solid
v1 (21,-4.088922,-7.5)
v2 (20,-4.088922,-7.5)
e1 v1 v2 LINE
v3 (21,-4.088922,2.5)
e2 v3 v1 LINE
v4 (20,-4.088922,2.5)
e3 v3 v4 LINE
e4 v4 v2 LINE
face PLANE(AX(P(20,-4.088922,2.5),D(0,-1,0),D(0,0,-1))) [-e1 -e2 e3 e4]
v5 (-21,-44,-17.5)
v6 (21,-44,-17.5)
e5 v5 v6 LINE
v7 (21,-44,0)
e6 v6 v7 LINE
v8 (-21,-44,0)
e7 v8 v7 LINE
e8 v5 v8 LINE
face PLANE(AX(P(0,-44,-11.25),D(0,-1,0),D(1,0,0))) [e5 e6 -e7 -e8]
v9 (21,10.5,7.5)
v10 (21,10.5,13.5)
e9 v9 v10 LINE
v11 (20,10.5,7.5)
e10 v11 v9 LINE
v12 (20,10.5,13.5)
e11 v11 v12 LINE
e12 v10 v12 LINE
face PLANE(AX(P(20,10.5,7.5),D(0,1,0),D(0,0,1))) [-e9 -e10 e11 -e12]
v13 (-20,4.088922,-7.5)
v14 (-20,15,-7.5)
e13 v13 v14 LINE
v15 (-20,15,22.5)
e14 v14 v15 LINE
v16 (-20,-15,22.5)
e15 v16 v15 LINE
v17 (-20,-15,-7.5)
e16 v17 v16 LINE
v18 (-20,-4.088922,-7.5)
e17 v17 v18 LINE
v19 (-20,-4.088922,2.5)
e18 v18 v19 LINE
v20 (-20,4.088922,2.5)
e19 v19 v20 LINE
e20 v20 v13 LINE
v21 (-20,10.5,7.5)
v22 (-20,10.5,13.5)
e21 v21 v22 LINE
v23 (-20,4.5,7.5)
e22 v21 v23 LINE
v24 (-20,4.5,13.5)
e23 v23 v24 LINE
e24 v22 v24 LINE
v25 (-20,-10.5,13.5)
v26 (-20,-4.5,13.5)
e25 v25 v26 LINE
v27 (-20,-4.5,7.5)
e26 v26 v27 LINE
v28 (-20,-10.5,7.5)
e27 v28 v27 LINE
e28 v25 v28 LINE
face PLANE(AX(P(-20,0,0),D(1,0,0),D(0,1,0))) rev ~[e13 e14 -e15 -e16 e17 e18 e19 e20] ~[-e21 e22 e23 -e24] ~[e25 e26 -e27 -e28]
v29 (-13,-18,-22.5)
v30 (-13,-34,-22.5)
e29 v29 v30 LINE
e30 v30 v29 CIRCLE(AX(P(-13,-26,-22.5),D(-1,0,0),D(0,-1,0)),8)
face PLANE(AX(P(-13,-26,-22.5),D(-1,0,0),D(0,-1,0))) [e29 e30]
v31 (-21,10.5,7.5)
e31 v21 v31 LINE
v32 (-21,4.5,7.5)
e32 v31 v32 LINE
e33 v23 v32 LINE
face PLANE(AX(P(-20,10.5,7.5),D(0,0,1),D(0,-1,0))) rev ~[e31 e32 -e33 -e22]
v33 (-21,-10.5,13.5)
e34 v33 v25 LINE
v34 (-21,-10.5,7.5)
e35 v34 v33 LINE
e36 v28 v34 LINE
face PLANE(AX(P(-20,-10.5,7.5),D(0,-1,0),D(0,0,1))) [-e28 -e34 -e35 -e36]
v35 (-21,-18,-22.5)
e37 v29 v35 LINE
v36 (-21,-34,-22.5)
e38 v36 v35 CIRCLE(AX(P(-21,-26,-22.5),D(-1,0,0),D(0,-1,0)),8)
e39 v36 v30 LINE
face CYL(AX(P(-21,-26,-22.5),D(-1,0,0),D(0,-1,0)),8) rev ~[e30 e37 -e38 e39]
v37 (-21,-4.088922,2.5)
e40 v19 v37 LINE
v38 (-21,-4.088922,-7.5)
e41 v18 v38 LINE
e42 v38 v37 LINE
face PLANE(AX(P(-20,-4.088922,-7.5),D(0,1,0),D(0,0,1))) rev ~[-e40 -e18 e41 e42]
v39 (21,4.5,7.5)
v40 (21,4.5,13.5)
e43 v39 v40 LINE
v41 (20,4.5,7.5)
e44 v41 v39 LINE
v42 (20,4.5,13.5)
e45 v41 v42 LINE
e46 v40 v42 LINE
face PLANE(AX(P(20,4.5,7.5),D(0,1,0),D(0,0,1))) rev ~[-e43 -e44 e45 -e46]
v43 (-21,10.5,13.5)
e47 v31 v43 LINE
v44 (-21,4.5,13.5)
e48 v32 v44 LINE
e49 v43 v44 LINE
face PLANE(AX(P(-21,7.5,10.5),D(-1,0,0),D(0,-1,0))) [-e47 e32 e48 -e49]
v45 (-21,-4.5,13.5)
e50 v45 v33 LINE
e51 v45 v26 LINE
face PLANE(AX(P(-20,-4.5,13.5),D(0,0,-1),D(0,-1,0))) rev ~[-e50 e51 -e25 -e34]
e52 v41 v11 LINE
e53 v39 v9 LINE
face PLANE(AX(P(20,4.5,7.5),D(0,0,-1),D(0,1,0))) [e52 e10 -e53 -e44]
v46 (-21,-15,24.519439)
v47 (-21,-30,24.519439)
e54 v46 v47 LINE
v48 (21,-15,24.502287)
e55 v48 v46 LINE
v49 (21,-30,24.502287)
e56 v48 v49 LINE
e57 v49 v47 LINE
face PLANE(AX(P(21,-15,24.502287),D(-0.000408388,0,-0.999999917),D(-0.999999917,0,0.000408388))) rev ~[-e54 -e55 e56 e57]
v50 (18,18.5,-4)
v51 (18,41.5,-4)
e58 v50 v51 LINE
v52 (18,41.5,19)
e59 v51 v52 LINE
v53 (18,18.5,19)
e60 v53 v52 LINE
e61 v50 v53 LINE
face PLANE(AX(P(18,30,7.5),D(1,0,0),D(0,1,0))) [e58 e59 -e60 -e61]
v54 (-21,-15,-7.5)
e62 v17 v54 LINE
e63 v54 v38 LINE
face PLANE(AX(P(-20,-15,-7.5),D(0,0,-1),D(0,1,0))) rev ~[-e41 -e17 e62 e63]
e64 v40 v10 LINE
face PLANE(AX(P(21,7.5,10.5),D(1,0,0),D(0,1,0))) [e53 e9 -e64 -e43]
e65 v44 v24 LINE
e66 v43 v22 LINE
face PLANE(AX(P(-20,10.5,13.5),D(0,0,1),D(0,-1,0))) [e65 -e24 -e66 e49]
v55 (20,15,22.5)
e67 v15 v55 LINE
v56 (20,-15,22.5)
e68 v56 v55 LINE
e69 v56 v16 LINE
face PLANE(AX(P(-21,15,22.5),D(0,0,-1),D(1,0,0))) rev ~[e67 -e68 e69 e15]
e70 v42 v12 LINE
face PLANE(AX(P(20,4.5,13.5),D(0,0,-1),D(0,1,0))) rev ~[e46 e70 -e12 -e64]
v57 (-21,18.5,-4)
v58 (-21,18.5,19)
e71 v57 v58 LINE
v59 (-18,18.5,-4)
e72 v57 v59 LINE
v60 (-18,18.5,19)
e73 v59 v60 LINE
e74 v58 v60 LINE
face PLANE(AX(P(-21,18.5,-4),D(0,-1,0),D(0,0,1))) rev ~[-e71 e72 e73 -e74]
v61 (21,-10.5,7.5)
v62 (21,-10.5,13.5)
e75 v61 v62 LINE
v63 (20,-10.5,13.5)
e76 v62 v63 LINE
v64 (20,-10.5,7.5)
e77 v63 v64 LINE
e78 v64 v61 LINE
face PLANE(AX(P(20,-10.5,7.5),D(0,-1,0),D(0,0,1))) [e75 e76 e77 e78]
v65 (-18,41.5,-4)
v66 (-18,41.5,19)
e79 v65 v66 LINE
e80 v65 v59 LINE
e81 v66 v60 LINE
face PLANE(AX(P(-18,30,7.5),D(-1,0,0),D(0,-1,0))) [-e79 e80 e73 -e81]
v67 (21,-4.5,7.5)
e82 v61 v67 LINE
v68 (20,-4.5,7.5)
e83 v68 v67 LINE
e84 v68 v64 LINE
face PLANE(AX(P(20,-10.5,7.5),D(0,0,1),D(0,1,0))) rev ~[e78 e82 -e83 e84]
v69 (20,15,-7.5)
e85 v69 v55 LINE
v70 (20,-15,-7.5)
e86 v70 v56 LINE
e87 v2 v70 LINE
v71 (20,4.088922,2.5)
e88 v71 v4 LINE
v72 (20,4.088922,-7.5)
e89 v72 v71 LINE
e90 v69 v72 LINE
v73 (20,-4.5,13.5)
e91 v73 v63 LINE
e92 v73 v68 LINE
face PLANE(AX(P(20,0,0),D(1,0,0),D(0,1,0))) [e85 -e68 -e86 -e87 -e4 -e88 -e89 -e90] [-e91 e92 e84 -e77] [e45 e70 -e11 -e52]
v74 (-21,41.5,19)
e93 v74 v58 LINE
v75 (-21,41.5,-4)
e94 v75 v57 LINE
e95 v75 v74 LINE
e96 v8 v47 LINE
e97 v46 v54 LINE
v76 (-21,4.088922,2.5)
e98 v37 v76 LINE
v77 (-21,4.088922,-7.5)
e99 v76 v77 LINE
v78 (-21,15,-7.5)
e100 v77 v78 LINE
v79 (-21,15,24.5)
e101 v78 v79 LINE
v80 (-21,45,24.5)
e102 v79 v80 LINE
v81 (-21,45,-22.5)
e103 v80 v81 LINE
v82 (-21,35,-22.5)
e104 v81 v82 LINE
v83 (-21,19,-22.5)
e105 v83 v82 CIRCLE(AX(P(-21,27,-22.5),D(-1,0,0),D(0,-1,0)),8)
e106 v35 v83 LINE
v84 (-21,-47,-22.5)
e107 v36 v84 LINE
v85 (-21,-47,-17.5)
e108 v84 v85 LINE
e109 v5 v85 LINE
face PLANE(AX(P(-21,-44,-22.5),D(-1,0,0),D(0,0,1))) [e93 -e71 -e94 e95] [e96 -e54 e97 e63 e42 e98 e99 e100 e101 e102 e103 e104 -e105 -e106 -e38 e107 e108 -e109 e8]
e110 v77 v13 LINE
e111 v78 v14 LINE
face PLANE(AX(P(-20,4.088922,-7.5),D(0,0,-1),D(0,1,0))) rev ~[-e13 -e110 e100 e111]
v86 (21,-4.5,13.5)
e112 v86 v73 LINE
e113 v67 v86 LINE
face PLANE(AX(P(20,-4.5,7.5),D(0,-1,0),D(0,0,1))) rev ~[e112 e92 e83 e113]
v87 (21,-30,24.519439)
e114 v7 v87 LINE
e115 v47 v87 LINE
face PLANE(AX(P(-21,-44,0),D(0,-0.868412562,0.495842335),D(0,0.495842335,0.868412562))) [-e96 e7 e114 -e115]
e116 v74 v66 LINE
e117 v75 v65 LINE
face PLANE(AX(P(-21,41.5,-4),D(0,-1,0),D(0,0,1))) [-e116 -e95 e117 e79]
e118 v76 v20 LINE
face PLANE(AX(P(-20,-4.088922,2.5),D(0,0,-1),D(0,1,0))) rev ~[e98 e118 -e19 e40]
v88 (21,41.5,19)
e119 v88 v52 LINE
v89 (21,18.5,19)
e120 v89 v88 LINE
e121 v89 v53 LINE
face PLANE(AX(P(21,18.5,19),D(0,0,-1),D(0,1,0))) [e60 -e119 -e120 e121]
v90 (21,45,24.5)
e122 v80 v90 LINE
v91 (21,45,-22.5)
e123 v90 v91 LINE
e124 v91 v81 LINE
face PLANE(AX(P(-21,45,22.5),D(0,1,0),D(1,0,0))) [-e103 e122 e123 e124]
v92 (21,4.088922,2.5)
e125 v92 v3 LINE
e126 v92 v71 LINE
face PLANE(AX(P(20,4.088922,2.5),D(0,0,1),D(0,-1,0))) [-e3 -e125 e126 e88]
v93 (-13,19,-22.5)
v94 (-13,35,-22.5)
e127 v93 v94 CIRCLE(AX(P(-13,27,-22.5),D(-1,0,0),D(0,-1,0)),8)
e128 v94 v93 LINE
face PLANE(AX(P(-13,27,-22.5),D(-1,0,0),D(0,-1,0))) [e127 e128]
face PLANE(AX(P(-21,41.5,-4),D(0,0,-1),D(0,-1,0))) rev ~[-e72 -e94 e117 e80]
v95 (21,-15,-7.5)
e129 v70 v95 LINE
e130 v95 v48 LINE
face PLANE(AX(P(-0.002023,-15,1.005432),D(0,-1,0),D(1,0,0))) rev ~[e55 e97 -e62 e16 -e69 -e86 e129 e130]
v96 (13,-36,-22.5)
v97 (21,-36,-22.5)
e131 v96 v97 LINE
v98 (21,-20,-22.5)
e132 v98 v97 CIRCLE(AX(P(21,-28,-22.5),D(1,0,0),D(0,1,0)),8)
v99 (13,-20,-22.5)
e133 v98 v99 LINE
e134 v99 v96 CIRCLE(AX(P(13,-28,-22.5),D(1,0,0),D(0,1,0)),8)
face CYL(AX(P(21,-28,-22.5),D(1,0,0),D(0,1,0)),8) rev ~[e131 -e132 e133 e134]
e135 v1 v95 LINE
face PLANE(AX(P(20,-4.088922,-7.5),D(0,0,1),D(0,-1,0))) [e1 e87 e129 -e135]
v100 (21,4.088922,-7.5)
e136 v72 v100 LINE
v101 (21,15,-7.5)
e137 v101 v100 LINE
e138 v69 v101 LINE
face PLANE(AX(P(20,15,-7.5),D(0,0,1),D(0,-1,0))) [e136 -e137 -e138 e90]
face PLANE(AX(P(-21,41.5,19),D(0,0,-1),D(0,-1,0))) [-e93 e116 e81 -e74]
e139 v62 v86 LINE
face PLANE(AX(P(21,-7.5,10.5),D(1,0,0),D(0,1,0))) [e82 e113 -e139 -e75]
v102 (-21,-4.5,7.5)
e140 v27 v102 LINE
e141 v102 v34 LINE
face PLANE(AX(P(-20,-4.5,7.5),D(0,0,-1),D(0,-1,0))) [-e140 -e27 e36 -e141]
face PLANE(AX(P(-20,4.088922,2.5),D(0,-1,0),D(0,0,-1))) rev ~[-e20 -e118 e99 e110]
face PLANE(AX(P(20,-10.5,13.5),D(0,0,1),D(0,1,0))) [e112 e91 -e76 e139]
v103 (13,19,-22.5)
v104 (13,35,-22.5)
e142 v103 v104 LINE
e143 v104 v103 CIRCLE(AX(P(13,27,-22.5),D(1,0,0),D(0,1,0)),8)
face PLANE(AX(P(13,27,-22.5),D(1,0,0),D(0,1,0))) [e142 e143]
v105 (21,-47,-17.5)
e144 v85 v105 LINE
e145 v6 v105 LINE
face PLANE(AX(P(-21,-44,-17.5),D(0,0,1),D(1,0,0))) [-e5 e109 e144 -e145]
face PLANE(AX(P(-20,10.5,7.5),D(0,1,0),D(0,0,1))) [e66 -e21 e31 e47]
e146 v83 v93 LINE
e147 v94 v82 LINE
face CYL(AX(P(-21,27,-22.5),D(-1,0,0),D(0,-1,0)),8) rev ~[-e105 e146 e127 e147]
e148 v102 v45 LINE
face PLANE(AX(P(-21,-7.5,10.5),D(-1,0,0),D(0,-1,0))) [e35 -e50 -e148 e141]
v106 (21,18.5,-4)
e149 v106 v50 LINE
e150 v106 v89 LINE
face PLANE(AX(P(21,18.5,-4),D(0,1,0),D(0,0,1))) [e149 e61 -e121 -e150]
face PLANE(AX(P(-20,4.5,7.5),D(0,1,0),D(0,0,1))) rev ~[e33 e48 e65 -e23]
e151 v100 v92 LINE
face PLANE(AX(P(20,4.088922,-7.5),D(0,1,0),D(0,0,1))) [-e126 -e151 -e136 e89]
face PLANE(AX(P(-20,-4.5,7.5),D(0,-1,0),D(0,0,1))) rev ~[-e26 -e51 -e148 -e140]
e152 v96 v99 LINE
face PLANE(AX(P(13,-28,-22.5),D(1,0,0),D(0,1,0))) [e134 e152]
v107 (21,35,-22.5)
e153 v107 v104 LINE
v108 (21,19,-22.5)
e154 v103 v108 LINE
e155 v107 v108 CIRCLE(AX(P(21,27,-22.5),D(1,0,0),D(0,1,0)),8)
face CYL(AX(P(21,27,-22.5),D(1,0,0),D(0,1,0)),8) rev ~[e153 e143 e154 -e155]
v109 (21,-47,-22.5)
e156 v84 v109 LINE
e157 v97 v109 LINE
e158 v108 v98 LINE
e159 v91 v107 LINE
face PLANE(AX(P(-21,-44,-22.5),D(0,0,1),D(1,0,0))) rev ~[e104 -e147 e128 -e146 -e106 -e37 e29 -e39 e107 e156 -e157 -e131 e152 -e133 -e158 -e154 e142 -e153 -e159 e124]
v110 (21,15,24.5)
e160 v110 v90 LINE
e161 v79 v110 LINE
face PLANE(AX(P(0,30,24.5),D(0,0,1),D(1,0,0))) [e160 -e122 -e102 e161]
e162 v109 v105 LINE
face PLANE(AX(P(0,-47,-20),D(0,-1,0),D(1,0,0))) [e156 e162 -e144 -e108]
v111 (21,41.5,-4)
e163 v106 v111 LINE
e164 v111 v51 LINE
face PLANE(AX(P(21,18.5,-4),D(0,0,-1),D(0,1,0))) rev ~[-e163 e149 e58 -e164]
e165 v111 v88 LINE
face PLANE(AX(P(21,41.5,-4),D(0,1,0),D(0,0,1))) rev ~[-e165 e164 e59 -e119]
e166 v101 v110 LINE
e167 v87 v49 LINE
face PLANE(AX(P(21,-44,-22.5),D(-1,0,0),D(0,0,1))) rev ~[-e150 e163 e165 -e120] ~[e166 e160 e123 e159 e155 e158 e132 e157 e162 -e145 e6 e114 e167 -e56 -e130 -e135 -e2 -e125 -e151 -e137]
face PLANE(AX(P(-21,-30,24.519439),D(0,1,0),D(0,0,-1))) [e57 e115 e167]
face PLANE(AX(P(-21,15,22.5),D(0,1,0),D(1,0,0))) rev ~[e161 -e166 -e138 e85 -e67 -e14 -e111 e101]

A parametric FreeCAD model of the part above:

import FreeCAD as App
import Part
import Sketcher
Q = App.Units.Quantity

doc = App.newDocument("Part")
body = doc.addObject("PartDesign::Body", "Body")

# Sketch on YZ plane
sketch1 = body.newObject("Sketcher::SketchObject", "Sketch")
sketch1.AttachmentSupport = (doc.getObject("YZ_Plane"), [""])
sketch1.MapMode = "FlatFace"
sketch1.addGeometry([
    Part.LineSegment(App.Vector(-15, 22.5, 0), App.Vector(-15, -22.5, 0)),
    Part.LineSegment(App.Vector(-15, -22.5, 0), App.Vector(15, -22.5, 0)),
    Part.LineSegment(App.Vector(15, -22.5, 0), App.Vector(15, 22.5, 0)),
    Part.LineSegment(App.Vector(15, 22.5, 0), App.Vector(-15, 22.5, 0)),
], False)
sketch1.addConstraint([
    Sketcher.Constraint("Coincident", 0, 2, 1, 1),
    Sketcher.Constraint("Coincident", 1, 2, 2, 1),
    Sketcher.Constraint("Coincident", 2, 2, 3, 1),
    Sketcher.Constraint("Coincident", 3, 2, 0, 1),
    Sketcher.Constraint("Vertical", 0),
    Sketcher.Constraint("Horizontal", 1),
    Sketcher.Constraint("Vertical", 2),
    Sketcher.Constraint("Horizontal", 3),
    Sketcher.Constraint("Symmetric", 0, 2, 2, 2, -1, 1),
    Sketcher.Constraint("DistanceX", 1, 1, 1, 2, Q("30 mm")),
    Sketcher.Constraint("DistanceY", 0, 2, 0, 1, Q("45 mm")),
])
pad1 = body.newObject("PartDesign::Pad", "Pad")
pad1.Profile = sketch1
pad1.Length = 40
pad1.Midplane = True

# Sketch on YZ plane
sketch2 = body.newObject("Sketcher::SketchObject", "Sketch001")
sketch2.AttachmentSupport = (doc.getObject("YZ_Plane"), [""])
sketch2.MapMode = "FlatFace"
sketch2.AttachmentOffset = App.Placement(App.Vector(0, 0, -20), App.Rotation())
sketch2.addGeometry([
    Part.LineSegment(App.Vector(15, -7.5, 0), App.Vector(15, -22.5, 0)),  # 0
    Part.LineSegment(App.Vector(15, -22.5, 0), App.Vector(-15, -22.5, 0)),  # 1
    Part.LineSegment(App.Vector(-15, -22.5, 0), App.Vector(-15, -7.5, 0)),  # 2
    Part.LineSegment(App.Vector(-15, -7.5, 0), App.Vector(-4.088922, -7.5, 0)),  # 3
    Part.LineSegment(App.Vector(-4.088922, -7.5, 0), App.Vector(-4.088922, 2.5, 0)),  # 4
    Part.LineSegment(App.Vector(-4.088922, 2.5, 0), App.Vector(4.088922, 2.5, 0)),  # 5
    Part.LineSegment(App.Vector(4.088922, 2.5, 0), App.Vector(4.088922, -7.5, 0)),  # 6
    Part.LineSegment(App.Vector(4.088922, -7.5, 0), App.Vector(15, -7.5, 0)),  # 7
    Part.LineSegment(App.Vector(10.5, 13.5, 0), App.Vector(10.5, 7.5, 0)),  # 8
    Part.LineSegment(App.Vector(10.5, 7.5, 0), App.Vector(4.5, 7.5, 0)),  # 9
    Part.LineSegment(App.Vector(4.5, 7.5, 0), App.Vector(4.5, 13.5, 0)),  # 10
    Part.LineSegment(App.Vector(4.5, 13.5, 0), App.Vector(10.5, 13.5, 0)),  # 11
    Part.LineSegment(App.Vector(-4.5, 13.5, 0), App.Vector(-4.5, 7.5, 0)),  # 12
    Part.LineSegment(App.Vector(-4.5, 7.5, 0), App.Vector(-10.5, 7.5, 0)),  # 13
    Part.LineSegment(App.Vector(-10.5, 7.5, 0), App.Vector(-10.5, 13.5, 0)),  # 14
    Part.LineSegment(App.Vector(-10.5, 13.5, 0), App.Vector(-4.5, 13.5, 0)),  # 15
], False)
sketch2.addConstraint([
    Sketcher.Constraint("Coincident", 0, 2, 1, 1),
    Sketcher.Constraint("Coincident", 1, 2, 2, 1),
    Sketcher.Constraint("Coincident", 2, 2, 3, 1),
    Sketcher.Constraint("Coincident", 3, 2, 4, 1),
    Sketcher.Constraint("Coincident", 4, 2, 5, 1),
    Sketcher.Constraint("Coincident", 5, 2, 6, 1),
    Sketcher.Constraint("Coincident", 6, 2, 7, 1),
    Sketcher.Constraint("Coincident", 7, 2, 0, 1),
    Sketcher.Constraint("Coincident", 8, 2, 9, 1),
    Sketcher.Constraint("Coincident", 9, 2, 10, 1),
    Sketcher.Constraint("Coincident", 10, 2, 11, 1),
    Sketcher.Constraint("Coincident", 11, 2, 8, 1),
    Sketcher.Constraint("Coincident", 12, 2, 13, 1),
    Sketcher.Constraint("Coincident", 13, 2, 14, 1),
    Sketcher.Constraint("Coincident", 14, 2, 15, 1),
    Sketcher.Constraint("Coincident", 15, 2, 12, 1),
    Sketcher.Constraint("Vertical", 0),
    Sketcher.Constraint("Horizontal", 1),
    Sketcher.Constraint("Vertical", 2),
    Sketcher.Constraint("Horizontal", 3),
    Sketcher.Constraint("Vertical", 4),
    Sketcher.Constraint("Horizontal", 5),
    Sketcher.Constraint("Vertical", 6),
    Sketcher.Constraint("Horizontal", 7),
    Sketcher.Constraint("Vertical", 8),
    Sketcher.Constraint("Horizontal", 9),
    Sketcher.Constraint("Vertical", 10),
    Sketcher.Constraint("Horizontal", 11),
    Sketcher.Constraint("Vertical", 12),
    Sketcher.Constraint("Horizontal", 13),
    Sketcher.Constraint("Vertical", 14),
    Sketcher.Constraint("Horizontal", 15),
    Sketcher.Constraint("Symmetric", 3, 2, 6, 2, -2),
    Sketcher.Constraint("Symmetric", 9, 2, 12, 2, -2),
    Sketcher.Constraint("Symmetric", 11, 2, 14, 2, -2),
    Sketcher.Constraint("Equal", 3, 7),
    Sketcher.Constraint("Equal", 15, 8),
    Sketcher.Constraint("DistanceX", 1, 2, 1, 1, Q("30 mm")),
    Sketcher.Constraint("DistanceX", 9, 2, 9, 1, Q("6 mm")),
    Sketcher.Constraint("DistanceY", 0, 2, 0, 1, Q("15 mm")),
    Sketcher.Constraint("DistanceY", 4, 1, 4, 2, Q("10 mm")),
    Sketcher.Constraint("DistanceY", 5, 2, 8, 2, Q("5 mm")),
    Sketcher.Constraint("DistanceX", 12, 2, 9, 2, Q("9 mm")),
    Sketcher.Constraint("DistanceY", 0, 2, -1, 1, Q("22.5 mm")),
    Sketcher.Constraint("DistanceX", 3, 1, 3, 2, Q("10.911078 mm")),
])
pad2 = body.newObject("PartDesign::Pad", "Pad001")
pad2.Profile = sketch2
pad2.Length = 2
pad2.Midplane = True

# Sketch on YZ plane
sketch3 = body.newObject("Sketcher::SketchObject", "Sketch002")
sketch3.AttachmentSupport = (doc.getObject("YZ_Plane"), [""])
sketch3.MapMode = "FlatFace"
sketch3.AttachmentOffset = App.Placement(App.Vector(0, 0, 20), App.Rotation())
sketch3.addGeometry([
    Part.LineSegment(App.Vector(-4.088922, -7.5, 0), App.Vector(-15, -7.5, 0)),  # 0
    Part.LineSegment(App.Vector(-15, -7.5, 0), App.Vector(-15, -22.5, 0)),  # 1
    Part.LineSegment(App.Vector(-15, -22.5, 0), App.Vector(15, -22.5, 0)),  # 2
    Part.LineSegment(App.Vector(15, -22.5, 0), App.Vector(15, -7.5, 0)),  # 3
    Part.LineSegment(App.Vector(15, -7.5, 0), App.Vector(4.088922, -7.5, 0)),  # 4
    Part.LineSegment(App.Vector(4.088922, -7.5, 0), App.Vector(4.088922, 2.5, 0)),  # 5
    Part.LineSegment(App.Vector(4.088922, 2.5, 0), App.Vector(-4.088922, 2.5, 0)),  # 6
    Part.LineSegment(App.Vector(-4.088922, 2.5, 0), App.Vector(-4.088922, -7.5, 0)),  # 7
], False)
sketch3.addConstraint([
    Sketcher.Constraint("Coincident", 0, 2, 1, 1),
    Sketcher.Constraint("Coincident", 1, 2, 2, 1),
    Sketcher.Constraint("Coincident", 2, 2, 3, 1),
    Sketcher.Constraint("Coincident", 3, 2, 4, 1),
    Sketcher.Constraint("Coincident", 4, 2, 5, 1),
    Sketcher.Constraint("Coincident", 5, 2, 6, 1),
    Sketcher.Constraint("Coincident", 6, 2, 7, 1),
    Sketcher.Constraint("Coincident", 7, 2, 0, 1),
    Sketcher.Constraint("Horizontal", 0),
    Sketcher.Constraint("Vertical", 1),
    Sketcher.Constraint("Horizontal", 2),
    Sketcher.Constraint("Vertical", 3),
    Sketcher.Constraint("Horizontal", 4),
    Sketcher.Constraint("Vertical", 5),
    Sketcher.Constraint("Horizontal", 6),
    Sketcher.Constraint("Vertical", 7),
    Sketcher.Constraint("Symmetric", 0, 2, 3, 2, -2),
    Sketcher.Constraint("Equal", 0, 4),
    Sketcher.Constraint("DistanceX", 2, 1, 2, 2, Q("30 mm")),
    Sketcher.Constraint("DistanceY", 1, 2, 1, 1, Q("15 mm")),
    Sketcher.Constraint("DistanceY", 5, 1, 5, 2, Q("10 mm")),
    Sketcher.Constraint("DistanceY", 0, 2, -1, 1, Q("7.5 mm")),
    Sketcher.Constraint("DistanceX", 0, 2, 0, 1, Q("10.911078 mm")),
])
pad3 = body.newObject("PartDesign::Pad", "Pad002")
pad3.Profile = sketch3
pad3.Length = 2
pad3.Midplane = True

# Sketch on XZ plane
sketch4 = body.newObject("Sketcher::SketchObject", "Sketch003")
sketch4.AttachmentSupport = (doc.getObject("XZ_Plane"), [""])
sketch4.MapMode = "FlatFace"
sketch4.AttachmentOffset = App.Placement(App.Vector(0, 0, -15), App.Rotation())
sketch4.addGeometry([
    Part.LineSegment(App.Vector(-21, 22.5, 0), App.Vector(21, 22.5, 0)),
    Part.LineSegment(App.Vector(21, 22.5, 0), App.Vector(21, -22.5, 0)),
    Part.LineSegment(App.Vector(21, -22.5, 0), App.Vector(-21, -22.5, 0)),
    Part.LineSegment(App.Vector(-21, -22.5, 0), App.Vector(-21, 22.5, 0)),
], False)
sketch4.addConstraint([
    Sketcher.Constraint("Coincident", 0, 2, 1, 1),
    Sketcher.Constraint("Coincident", 1, 2, 2, 1),
    Sketcher.Constraint("Coincident", 2, 2, 3, 1),
    Sketcher.Constraint("Coincident", 3, 2, 0, 1),
    Sketcher.Constraint("Horizontal", 0),
    Sketcher.Constraint("Vertical", 1),
    Sketcher.Constraint("Horizontal", 2),
    Sketcher.Constraint("Vertical", 3),
    Sketcher.Constraint("Symmetric", 0, 2, 2, 2, -1, 1),
    Sketcher.Constraint("DistanceX", 0, 1, 0, 2, Q("42 mm")),
    Sketcher.Constraint("DistanceY", 1, 2, 1, 1, Q("45 mm")),
])
pad4 = body.newObject("PartDesign::Pad", "Pad003")
pad4.Profile = sketch4
pad4.Length = 30
pad4.Reversed = True

# Sketch on YZ plane
sketch5 = body.newObject("Sketcher::SketchObject", "Sketch004")
sketch5.AttachmentSupport = (doc.getObject("YZ_Plane"), [""])
sketch5.MapMode = "FlatFace"
sketch5.AttachmentOffset = App.Placement(App.Vector(0, 0, -21), App.Rotation())
sketch5.addGeometry([
    Part.LineSegment(App.Vector(41.5, 19, 0), App.Vector(41.5, -4, 0)),
    Part.LineSegment(App.Vector(41.5, -4, 0), App.Vector(18.5, -4, 0)),
    Part.LineSegment(App.Vector(18.5, -4, 0), App.Vector(18.5, 19, 0)),
    Part.LineSegment(App.Vector(18.5, 19, 0), App.Vector(41.5, 19, 0)),
], False)
sketch5.addConstraint([
    Sketcher.Constraint("Coincident", 0, 2, 1, 1),
    Sketcher.Constraint("Coincident", 1, 2, 2, 1),
    Sketcher.Constraint("Coincident", 2, 2, 3, 1),
    Sketcher.Constraint("Coincident", 3, 2, 0, 1),
    Sketcher.Constraint("Vertical", 0),
    Sketcher.Constraint("Horizontal", 1),
    Sketcher.Constraint("Vertical", 2),
    Sketcher.Constraint("Horizontal", 3),
    Sketcher.Constraint("Equal", 3, 0),
    Sketcher.Constraint("DistanceX", 1, 2, 1, 1, Q("23 mm")),
    Sketcher.Constraint("DistanceY", 0, 2, -1, 1, Q("4 mm")),
    Sketcher.Constraint("DistanceX", -1, 1, 0, 2, Q("41.5 mm")),
])
pocket1 = body.newObject("PartDesign::Pocket", "Pocket")
pocket1.Profile = sketch5
pocket1.Length = 3
pocket1.Reversed = True

# Sketch on YZ plane
sketch6 = body.newObject("Sketcher::SketchObject", "Sketch005")
sketch6.AttachmentSupport = (doc.getObject("YZ_Plane"), [""])
sketch6.MapMode = "FlatFace"
sketch6.AttachmentOffset = App.Placement(App.Vector(0, 0, 21), App.Rotation())
sketch6.addGeometry([
    Part.LineSegment(App.Vector(18.5, 19, 0), App.Vector(18.5, -4, 0)),
    Part.LineSegment(App.Vector(18.5, -4, 0), App.Vector(41.5, -4, 0)),
    Part.LineSegment(App.Vector(41.5, -4, 0), App.Vector(41.5, 19, 0)),
    Part.LineSegment(App.Vector(41.5, 19, 0), App.Vector(18.5, 19, 0)),
], False)
sketch6.addConstraint([
    Sketcher.Constraint("Coincident", 0, 2, 1, 1),
    Sketcher.Constraint("Coincident", 1, 2, 2, 1),
    Sketcher.Constraint("Coincident", 2, 2, 3, 1),
    Sketcher.Constraint("Coincident", 3, 2, 0, 1),
    Sketcher.Constraint("Vertical", 0),
    Sketcher.Constraint("Horizontal", 1),
    Sketcher.Constraint("Vertical", 2),
    Sketcher.Constraint("Horizontal", 3),
    Sketcher.Constraint("Equal", 3, 0),
    Sketcher.Constraint("DistanceX", 1, 1, 1, 2, Q("23 mm")),
    Sketcher.Constraint("DistanceY", 0, 2, -1, 1, Q("4 mm")),
    Sketcher.Constraint("DistanceX", -1, 1, 0, 2, Q("18.5 mm")),
])
pocket2 = body.newObject("PartDesign::Pocket", "Pocket001")
pocket2.Profile = sketch6
pocket2.Length = 3

# Sketch on XY plane
sketch7 = body.newObject("Sketcher::SketchObject", "Sketch006")
sketch7.AttachmentSupport = (doc.getObject("XY_Plane"), [""])
sketch7.MapMode = "FlatFace"
sketch7.AttachmentOffset = App.Placement(App.Vector(0, 0, 22.5), App.Rotation())
sketch7.addGeometry([
    Part.LineSegment(App.Vector(-21, 45, 0), App.Vector(-21, 15, 0)),
    Part.LineSegment(App.Vector(-21, 15, 0), App.Vector(21, 15, 0)),
    Part.LineSegment(App.Vector(21, 15, 0), App.Vector(21, 45, 0)),
    Part.LineSegment(App.Vector(21, 45, 0), App.Vector(-21, 45, 0)),
], False)
sketch7.addConstraint([
    Sketcher.Constraint("Coincident", 0, 2, 1, 1),
    Sketcher.Constraint("Coincident", 1, 2, 2, 1),
    Sketcher.Constraint("Coincident", 2, 2, 3, 1),
    Sketcher.Constraint("Coincident", 3, 2, 0, 1),
    Sketcher.Constraint("Vertical", 0),
    Sketcher.Constraint("Horizontal", 1),
    Sketcher.Constraint("Vertical", 2),
    Sketcher.Constraint("Horizontal", 3),
    Sketcher.Constraint("DistanceX", 1, 1, 1, 2, Q("42 mm")),
    Sketcher.Constraint("DistanceY", 0, 2, 0, 1, Q("30 mm")),
    Sketcher.Constraint("DistanceX", 0, 2, -1, 1, Q("21 mm")),
    Sketcher.Constraint("DistanceY", -1, 1, 0, 2, Q("15 mm")),
])
pad5 = body.newObject("PartDesign::Pad", "Pad004")
pad5.Profile = sketch7
pad5.Length = 2

# Sketch on YZ plane
sketch8 = body.newObject("Sketcher::SketchObject", "Sketch007")
sketch8.AttachmentSupport = (doc.getObject("YZ_Plane"), [""])
sketch8.MapMode = "FlatFace"
sketch8.AttachmentOffset = App.Placement(App.Vector(0, 0, -21), App.Rotation())
sketch8.addGeometry(Part.Circle(App.Vector(27, -22.5, 0), App.Vector(0, 0, 1), 8), False)
sketch8.addConstraint([
    Sketcher.Constraint("Diameter", 0, Q("16 mm")),
    Sketcher.Constraint("DistanceX", -1, 1, 0, 3, Q("27 mm")),
    Sketcher.Constraint("DistanceY", 0, 3, -1, 1, Q("22.5 mm")),
])
pocket3 = body.newObject("PartDesign::Pocket", "Pocket002")
pocket3.Profile = sketch8
pocket3.Length = 8
pocket3.Reversed = True

# Sketch on XZ plane
sketch9 = body.newObject("Sketcher::SketchObject", "Sketch008")
sketch9.AttachmentSupport = (doc.getObject("XZ_Plane"), [""])
sketch9.MapMode = "FlatFace"
sketch9.AttachmentOffset = App.Placement(App.Vector(0, 0, 15), App.Rotation())
sketch9.addGeometry([
    Part.LineSegment(App.Vector(-21, 24.519439, 0), App.Vector(-21, -22.5, 0)),
    Part.LineSegment(App.Vector(-21, -22.5, 0), App.Vector(21, -22.5, 0)),
    Part.LineSegment(App.Vector(21, -22.5, 0), App.Vector(21, 24.502287, 0)),
    Part.LineSegment(App.Vector(21, 24.502287, 0), App.Vector(-21, 24.519439, 0)),
], False)
sketch9.addConstraint([
    Sketcher.Constraint("Coincident", 0, 2, 1, 1),
    Sketcher.Constraint("Coincident", 1, 2, 2, 1),
    Sketcher.Constraint("Coincident", 2, 2, 3, 1),
    Sketcher.Constraint("Coincident", 3, 2, 0, 1),
    Sketcher.Constraint("Vertical", 0),
    Sketcher.Constraint("Horizontal", 1),
    Sketcher.Constraint("Vertical", 2),
    Sketcher.Constraint("DistanceX", 1, 1, 1, 2, Q("42 mm")),
    Sketcher.Constraint("DistanceX", 0, 2, -1, 1, Q("21 mm")),
    Sketcher.Constraint("DistanceY", 0, 2, -1, 1, Q("22.5 mm")),
    Sketcher.Constraint("DistanceY", 0, 2, 0, 1, Q("47.019439 mm")),
    Sketcher.Constraint("DistanceY", 2, 1, 2, 2, Q("47.002287 mm")),
])
pad6 = body.newObject("PartDesign::Pad", "Pad005")
pad6.Profile = sketch9
pad6.Length = 15

# Sketch on XZ plane
sketch10 = body.newObject("Sketcher::SketchObject", "Sketch009")
sketch10.AttachmentSupport = (doc.getObject("XZ_Plane"), [""])
sketch10.MapMode = "FlatFace"
sketch10.AttachmentOffset = App.Placement(App.Vector(0, 0, 30), App.Rotation())
sketch10.addGeometry([
    Part.LineSegment(App.Vector(-21, 0, 0), App.Vector(-21, -22.5, 0)),
    Part.LineSegment(App.Vector(-21, -22.5, 0), App.Vector(21, -22.5, 0)),
    Part.LineSegment(App.Vector(21, -22.5, 0), App.Vector(21, 0, 0)),
    Part.LineSegment(App.Vector(21, 0, 0), App.Vector(-21, 0, 0)),
], False)
sketch10.addConstraint([
    Sketcher.Constraint("Coincident", 0, 2, 1, 1),
    Sketcher.Constraint("Coincident", 1, 2, 2, 1),
    Sketcher.Constraint("Coincident", 2, 2, 3, 1),
    Sketcher.Constraint("Coincident", 3, 2, 0, 1),
    Sketcher.Constraint("Vertical", 0),
    Sketcher.Constraint("Horizontal", 1),
    Sketcher.Constraint("Vertical", 2),
    Sketcher.Constraint("Horizontal", 3),
    Sketcher.Constraint("Symmetric", 2, 2, 3, 2, -1, 1),
    Sketcher.Constraint("DistanceX", 1, 1, 1, 2, Q("42 mm")),
    Sketcher.Constraint("DistanceY", 0, 2, 0, 1, Q("22.5 mm")),
])
pad7 = body.newObject("PartDesign::Pad", "Pad006")
pad7.Profile = sketch10
pad7.Length = 14

# Sketch on YZ plane
sketch11 = body.newObject("Sketcher::SketchObject", "Sketch010")
sketch11.AttachmentSupport = (doc.getObject("YZ_Plane"), [""])
sketch11.MapMode = "FlatFace"
sketch11.AttachmentOffset = App.Placement(App.Vector(0, 0, 21), App.Rotation())
sketch11.addGeometry(Part.Circle(App.Vector(27, -22.5, 0), App.Vector(0, 0, 1), 8), False)
sketch11.addConstraint([
    Sketcher.Constraint("Diameter", 0, Q("16 mm")),
    Sketcher.Constraint("DistanceX", -1, 1, 0, 3, Q("27 mm")),
    Sketcher.Constraint("DistanceY", 0, 3, -1, 1, Q("22.5 mm")),
])
pocket4 = body.newObject("PartDesign::Pocket", "Pocket003")
pocket4.Profile = sketch11
pocket4.Length = 8

# Sketch on YZ plane
sketch12 = body.newObject("Sketcher::SketchObject", "Sketch011")
sketch12.AttachmentSupport = (doc.getObject("YZ_Plane"), [""])
sketch12.MapMode = "FlatFace"
sketch12.AttachmentOffset = App.Placement(App.Vector(0, 0, -21), App.Rotation())
sketch12.addGeometry([
    Part.LineSegment(App.Vector(-44, 0, 0), App.Vector(-30, 24.519439, 0)),
    Part.LineSegment(App.Vector(-30, 24.519439, 0), App.Vector(-30, 0, 0)),
    Part.LineSegment(App.Vector(-30, 0, 0), App.Vector(-44, 0, 0)),
], False)
sketch12.addConstraint([
    Sketcher.Constraint("Coincident", 0, 2, 1, 1),
    Sketcher.Constraint("Coincident", 1, 2, 2, 1),
    Sketcher.Constraint("Coincident", 2, 2, 0, 1),
    Sketcher.Constraint("Vertical", 1),
    Sketcher.Constraint("Horizontal", 2),
    Sketcher.Constraint("PointOnObject", 1, 2, -1),
    Sketcher.Constraint("DistanceX", 2, 2, 2, 1, Q("14 mm")),
    Sketcher.Constraint("DistanceX", 0, 2, -1, 1, Q("30 mm")),
    Sketcher.Constraint("DistanceY", 1, 2, 1, 1, Q("24.519439 mm")),
])
pad8 = body.newObject("PartDesign::Pad", "Pad007")
pad8.Profile = sketch12
pad8.Length = 42

# Sketch on YZ plane
sketch13 = body.newObject("Sketcher::SketchObject", "Sketch012")
sketch13.AttachmentSupport = (doc.getObject("YZ_Plane"), [""])
sketch13.MapMode = "FlatFace"
sketch13.AttachmentOffset = App.Placement(App.Vector(0, 0, -20), App.Rotation())
sketch13.addGeometry([
    Part.LineSegment(App.Vector(15, -7.5, 0), App.Vector(15, -22.5, 0)),  # 0
    Part.LineSegment(App.Vector(15, -22.5, 0), App.Vector(-15, -22.5, 0)),  # 1
    Part.LineSegment(App.Vector(-15, -22.5, 0), App.Vector(-15, -7.5, 0)),  # 2
    Part.LineSegment(App.Vector(-15, -7.5, 0), App.Vector(-4.088922, -7.5, 0)),  # 3
    Part.LineSegment(App.Vector(-4.088922, -7.5, 0), App.Vector(-4.088922, 2.5, 0)),  # 4
    Part.LineSegment(App.Vector(-4.088922, 2.5, 0), App.Vector(4.088922, 2.5, 0)),  # 5
    Part.LineSegment(App.Vector(4.088922, 2.5, 0), App.Vector(4.088922, -7.5, 0)),  # 6
    Part.LineSegment(App.Vector(4.088922, -7.5, 0), App.Vector(15, -7.5, 0)),  # 7
    Part.LineSegment(App.Vector(10.5, 13.5, 0), App.Vector(10.5, 7.5, 0)),  # 8
    Part.LineSegment(App.Vector(10.5, 7.5, 0), App.Vector(4.5, 7.5, 0)),  # 9
    Part.LineSegment(App.Vector(4.5, 7.5, 0), App.Vector(4.5, 13.5, 0)),  # 10
    Part.LineSegment(App.Vector(4.5, 13.5, 0), App.Vector(10.5, 13.5, 0)),  # 11
    Part.LineSegment(App.Vector(-4.5, 13.5, 0), App.Vector(-4.5, 7.5, 0)),  # 12
    Part.LineSegment(App.Vector(-4.5, 7.5, 0), App.Vector(-10.5, 7.5, 0)),  # 13
    Part.LineSegment(App.Vector(-10.5, 7.5, 0), App.Vector(-10.5, 13.5, 0)),  # 14
    Part.LineSegment(App.Vector(-10.5, 13.5, 0), App.Vector(-4.5, 13.5, 0)),  # 15
], False)
sketch13.addConstraint([
    Sketcher.Constraint("Coincident", 0, 2, 1, 1),
    Sketcher.Constraint("Coincident", 1, 2, 2, 1),
    Sketcher.Constraint("Coincident", 2, 2, 3, 1),
    Sketcher.Constraint("Coincident", 3, 2, 4, 1),
    Sketcher.Constraint("Coincident", 4, 2, 5, 1),
    Sketcher.Constraint("Coincident", 5, 2, 6, 1),
    Sketcher.Constraint("Coincident", 6, 2, 7, 1),
    Sketcher.Constraint("Coincident", 7, 2, 0, 1),
    Sketcher.Constraint("Coincident", 8, 2, 9, 1),
    Sketcher.Constraint("Coincident", 9, 2, 10, 1),
    Sketcher.Constraint("Coincident", 10, 2, 11, 1),
    Sketcher.Constraint("Coincident", 11, 2, 8, 1),
    Sketcher.Constraint("Coincident", 12, 2, 13, 1),
    Sketcher.Constraint("Coincident", 13, 2, 14, 1),
    Sketcher.Constraint("Coincident", 14, 2, 15, 1),
    Sketcher.Constraint("Coincident", 15, 2, 12, 1),
    Sketcher.Constraint("Vertical", 0),
    Sketcher.Constraint("Horizontal", 1),
    Sketcher.Constraint("Vertical", 2),
    Sketcher.Constraint("Horizontal", 3),
    Sketcher.Constraint("Vertical", 4),
    Sketcher.Constraint("Horizontal", 5),
    Sketcher.Constraint("Vertical", 6),
    Sketcher.Constraint("Horizontal", 7),
    Sketcher.Constraint("Vertical", 8),
    Sketcher.Constraint("Horizontal", 9),
    Sketcher.Constraint("Vertical", 10),
    Sketcher.Constraint("Horizontal", 11),
    Sketcher.Constraint("Vertical", 12),
    Sketcher.Constraint("Horizontal", 13),
    Sketcher.Constraint("Vertical", 14),
    Sketcher.Constraint("Horizontal", 15),
    Sketcher.Constraint("Symmetric", 3, 2, 6, 2, -2),
    Sketcher.Constraint("Symmetric", 9, 2, 12, 2, -2),
    Sketcher.Constraint("Symmetric", 11, 2, 14, 2, -2),
    Sketcher.Constraint("Equal", 3, 7),
    Sketcher.Constraint("Equal", 15, 8),
    Sketcher.Constraint("DistanceX", 1, 2, 1, 1, Q("30 mm")),
    Sketcher.Constraint("DistanceX", 9, 2, 9, 1, Q("6 mm")),
    Sketcher.Constraint("DistanceY", 0, 2, 0, 1, Q("15 mm")),
    Sketcher.Constraint("DistanceY", 4, 1, 4, 2, Q("10 mm")),
    Sketcher.Constraint("DistanceY", 5, 2, 8, 2, Q("5 mm")),
    Sketcher.Constraint("DistanceX", 12, 2, 9, 2, Q("9 mm")),
    Sketcher.Constraint("DistanceY", 0, 2, -1, 1, Q("22.5 mm")),
    Sketcher.Constraint("DistanceX", 3, 1, 3, 2, Q("10.911078 mm")),
])
pad9 = body.newObject("PartDesign::Pad", "Pad008")
pad9.Profile = sketch13
pad9.Length = 1
pad9.Reversed = True

# Sketch on YZ plane
sketch14 = body.newObject("Sketcher::SketchObject", "Sketch013")
sketch14.AttachmentSupport = (doc.getObject("YZ_Plane"), [""])
sketch14.MapMode = "FlatFace"
sketch14.AttachmentOffset = App.Placement(App.Vector(0, 0, -21), App.Rotation())
sketch14.addGeometry(Part.Circle(App.Vector(-26, -22.5, 0), App.Vector(0, 0, 1), 8), False)
sketch14.addConstraint([
    Sketcher.Constraint("Diameter", 0, Q("16 mm")),
    Sketcher.Constraint("DistanceX", 0, 3, -1, 1, Q("26 mm")),
    Sketcher.Constraint("DistanceY", 0, 3, -1, 1, Q("22.5 mm")),
])
pocket5 = body.newObject("PartDesign::Pocket", "Pocket004")
pocket5.Profile = sketch14
pocket5.Length = 8
pocket5.Reversed = True

# Sketch on YZ plane
sketch15 = body.newObject("Sketcher::SketchObject", "Sketch014")
sketch15.AttachmentSupport = (doc.getObject("YZ_Plane"), [""])
sketch15.MapMode = "FlatFace"
sketch15.AttachmentOffset = App.Placement(App.Vector(0, 0, 21), App.Rotation())
sketch15.addGeometry(Part.Circle(App.Vector(-28, -22.5, 0), App.Vector(0, 0, 1), 8), False)
sketch15.addConstraint([
    Sketcher.Constraint("Diameter", 0, Q("16 mm")),
    Sketcher.Constraint("DistanceX", 0, 3, -1, 1, Q("28 mm")),
    Sketcher.Constraint("DistanceY", 0, 3, -1, 1, Q("22.5 mm")),
])
pocket6 = body.newObject("PartDesign::Pocket", "Pocket005")
pocket6.Profile = sketch15
pocket6.Length = 8

# Sketch on YZ plane
sketch16 = body.newObject("Sketcher::SketchObject", "Sketch015")
sketch16.AttachmentSupport = (doc.getObject("YZ_Plane"), [""])
sketch16.MapMode = "FlatFace"
sketch16.AttachmentOffset = App.Placement(App.Vector(0, 0, 20), App.Rotation())
sketch16.addGeometry([
    Part.LineSegment(App.Vector(-10.5, 13.5, 0), App.Vector(-10.5, 7.5, 0)),  # 0
    Part.LineSegment(App.Vector(-10.5, 7.5, 0), App.Vector(-4.5, 7.5, 0)),  # 1
    Part.LineSegment(App.Vector(-4.5, 7.5, 0), App.Vector(-4.5, 13.5, 0)),  # 2
    Part.LineSegment(App.Vector(-4.5, 13.5, 0), App.Vector(-10.5, 13.5, 0)),  # 3
    Part.LineSegment(App.Vector(4.5, 13.5, 0), App.Vector(4.5, 7.5, 0)),  # 4
    Part.LineSegment(App.Vector(4.5, 7.5, 0), App.Vector(10.5, 7.5, 0)),  # 5
    Part.LineSegment(App.Vector(10.5, 7.5, 0), App.Vector(10.5, 13.5, 0)),  # 6
    Part.LineSegment(App.Vector(10.5, 13.5, 0), App.Vector(4.5, 13.5, 0)),  # 7
], False)
sketch16.addConstraint([
    Sketcher.Constraint("Coincident", 0, 2, 1, 1),
    Sketcher.Constraint("Coincident", 1, 2, 2, 1),
    Sketcher.Constraint("Coincident", 2, 2, 3, 1),
    Sketcher.Constraint("Coincident", 3, 2, 0, 1),
    Sketcher.Constraint("Coincident", 4, 2, 5, 1),
    Sketcher.Constraint("Coincident", 5, 2, 6, 1),
    Sketcher.Constraint("Coincident", 6, 2, 7, 1),
    Sketcher.Constraint("Coincident", 7, 2, 4, 1),
    Sketcher.Constraint("Vertical", 0),
    Sketcher.Constraint("Horizontal", 1),
    Sketcher.Constraint("Vertical", 2),
    Sketcher.Constraint("Horizontal", 3),
    Sketcher.Constraint("Vertical", 4),
    Sketcher.Constraint("Horizontal", 5),
    Sketcher.Constraint("Vertical", 6),
    Sketcher.Constraint("Horizontal", 7),
    Sketcher.Constraint("Symmetric", 1, 2, 4, 2, -2),
    Sketcher.Constraint("Symmetric", 3, 2, 6, 2, -2),
    Sketcher.Constraint("Equal", 7, 0),
    Sketcher.Constraint("DistanceX", 1, 1, 1, 2, Q("6 mm")),
    Sketcher.Constraint("DistanceX", 1, 2, 4, 2, Q("9 mm")),
    Sketcher.Constraint("DistanceY", -1, 1, 0, 2, Q("7.5 mm")),
])
pad10 = body.newObject("PartDesign::Pad", "Pad009")
pad10.Profile = sketch16
pad10.Length = 2
pad10.Midplane = True

# Sketch on XZ plane
sketch17 = body.newObject("Sketcher::SketchObject", "Sketch016")
sketch17.AttachmentSupport = (doc.getObject("XZ_Plane"), [""])
sketch17.MapMode = "FlatFace"
sketch17.AttachmentOffset = App.Placement(App.Vector(0, 0, 44), App.Rotation())
sketch17.addGeometry([
    Part.LineSegment(App.Vector(-21, -17.5, 0), App.Vector(-21, -22.5, 0)),
    Part.LineSegment(App.Vector(-21, -22.5, 0), App.Vector(21, -22.5, 0)),
    Part.LineSegment(App.Vector(21, -22.5, 0), App.Vector(21, -17.5, 0)),
    Part.LineSegment(App.Vector(21, -17.5, 0), App.Vector(-21, -17.5, 0)),
], False)
sketch17.addConstraint([
    Sketcher.Constraint("Coincident", 0, 2, 1, 1),
    Sketcher.Constraint("Coincident", 1, 2, 2, 1),
    Sketcher.Constraint("Coincident", 2, 2, 3, 1),
    Sketcher.Constraint("Coincident", 3, 2, 0, 1),
    Sketcher.Constraint("Vertical", 0),
    Sketcher.Constraint("Horizontal", 1),
    Sketcher.Constraint("Vertical", 2),
    Sketcher.Constraint("Horizontal", 3),
    Sketcher.Constraint("DistanceX", 1, 1, 1, 2, Q("42 mm")),
    Sketcher.Constraint("DistanceY", 0, 2, 0, 1, Q("5 mm")),
    Sketcher.Constraint("DistanceX", 0, 2, -1, 1, Q("21 mm")),
    Sketcher.Constraint("DistanceY", 0, 2, -1, 1, Q("22.5 mm")),
])
pad11 = body.newObject("PartDesign::Pad", "Pad010")
pad11.Profile = sketch17
pad11.Length = 3

doc.recompute()
